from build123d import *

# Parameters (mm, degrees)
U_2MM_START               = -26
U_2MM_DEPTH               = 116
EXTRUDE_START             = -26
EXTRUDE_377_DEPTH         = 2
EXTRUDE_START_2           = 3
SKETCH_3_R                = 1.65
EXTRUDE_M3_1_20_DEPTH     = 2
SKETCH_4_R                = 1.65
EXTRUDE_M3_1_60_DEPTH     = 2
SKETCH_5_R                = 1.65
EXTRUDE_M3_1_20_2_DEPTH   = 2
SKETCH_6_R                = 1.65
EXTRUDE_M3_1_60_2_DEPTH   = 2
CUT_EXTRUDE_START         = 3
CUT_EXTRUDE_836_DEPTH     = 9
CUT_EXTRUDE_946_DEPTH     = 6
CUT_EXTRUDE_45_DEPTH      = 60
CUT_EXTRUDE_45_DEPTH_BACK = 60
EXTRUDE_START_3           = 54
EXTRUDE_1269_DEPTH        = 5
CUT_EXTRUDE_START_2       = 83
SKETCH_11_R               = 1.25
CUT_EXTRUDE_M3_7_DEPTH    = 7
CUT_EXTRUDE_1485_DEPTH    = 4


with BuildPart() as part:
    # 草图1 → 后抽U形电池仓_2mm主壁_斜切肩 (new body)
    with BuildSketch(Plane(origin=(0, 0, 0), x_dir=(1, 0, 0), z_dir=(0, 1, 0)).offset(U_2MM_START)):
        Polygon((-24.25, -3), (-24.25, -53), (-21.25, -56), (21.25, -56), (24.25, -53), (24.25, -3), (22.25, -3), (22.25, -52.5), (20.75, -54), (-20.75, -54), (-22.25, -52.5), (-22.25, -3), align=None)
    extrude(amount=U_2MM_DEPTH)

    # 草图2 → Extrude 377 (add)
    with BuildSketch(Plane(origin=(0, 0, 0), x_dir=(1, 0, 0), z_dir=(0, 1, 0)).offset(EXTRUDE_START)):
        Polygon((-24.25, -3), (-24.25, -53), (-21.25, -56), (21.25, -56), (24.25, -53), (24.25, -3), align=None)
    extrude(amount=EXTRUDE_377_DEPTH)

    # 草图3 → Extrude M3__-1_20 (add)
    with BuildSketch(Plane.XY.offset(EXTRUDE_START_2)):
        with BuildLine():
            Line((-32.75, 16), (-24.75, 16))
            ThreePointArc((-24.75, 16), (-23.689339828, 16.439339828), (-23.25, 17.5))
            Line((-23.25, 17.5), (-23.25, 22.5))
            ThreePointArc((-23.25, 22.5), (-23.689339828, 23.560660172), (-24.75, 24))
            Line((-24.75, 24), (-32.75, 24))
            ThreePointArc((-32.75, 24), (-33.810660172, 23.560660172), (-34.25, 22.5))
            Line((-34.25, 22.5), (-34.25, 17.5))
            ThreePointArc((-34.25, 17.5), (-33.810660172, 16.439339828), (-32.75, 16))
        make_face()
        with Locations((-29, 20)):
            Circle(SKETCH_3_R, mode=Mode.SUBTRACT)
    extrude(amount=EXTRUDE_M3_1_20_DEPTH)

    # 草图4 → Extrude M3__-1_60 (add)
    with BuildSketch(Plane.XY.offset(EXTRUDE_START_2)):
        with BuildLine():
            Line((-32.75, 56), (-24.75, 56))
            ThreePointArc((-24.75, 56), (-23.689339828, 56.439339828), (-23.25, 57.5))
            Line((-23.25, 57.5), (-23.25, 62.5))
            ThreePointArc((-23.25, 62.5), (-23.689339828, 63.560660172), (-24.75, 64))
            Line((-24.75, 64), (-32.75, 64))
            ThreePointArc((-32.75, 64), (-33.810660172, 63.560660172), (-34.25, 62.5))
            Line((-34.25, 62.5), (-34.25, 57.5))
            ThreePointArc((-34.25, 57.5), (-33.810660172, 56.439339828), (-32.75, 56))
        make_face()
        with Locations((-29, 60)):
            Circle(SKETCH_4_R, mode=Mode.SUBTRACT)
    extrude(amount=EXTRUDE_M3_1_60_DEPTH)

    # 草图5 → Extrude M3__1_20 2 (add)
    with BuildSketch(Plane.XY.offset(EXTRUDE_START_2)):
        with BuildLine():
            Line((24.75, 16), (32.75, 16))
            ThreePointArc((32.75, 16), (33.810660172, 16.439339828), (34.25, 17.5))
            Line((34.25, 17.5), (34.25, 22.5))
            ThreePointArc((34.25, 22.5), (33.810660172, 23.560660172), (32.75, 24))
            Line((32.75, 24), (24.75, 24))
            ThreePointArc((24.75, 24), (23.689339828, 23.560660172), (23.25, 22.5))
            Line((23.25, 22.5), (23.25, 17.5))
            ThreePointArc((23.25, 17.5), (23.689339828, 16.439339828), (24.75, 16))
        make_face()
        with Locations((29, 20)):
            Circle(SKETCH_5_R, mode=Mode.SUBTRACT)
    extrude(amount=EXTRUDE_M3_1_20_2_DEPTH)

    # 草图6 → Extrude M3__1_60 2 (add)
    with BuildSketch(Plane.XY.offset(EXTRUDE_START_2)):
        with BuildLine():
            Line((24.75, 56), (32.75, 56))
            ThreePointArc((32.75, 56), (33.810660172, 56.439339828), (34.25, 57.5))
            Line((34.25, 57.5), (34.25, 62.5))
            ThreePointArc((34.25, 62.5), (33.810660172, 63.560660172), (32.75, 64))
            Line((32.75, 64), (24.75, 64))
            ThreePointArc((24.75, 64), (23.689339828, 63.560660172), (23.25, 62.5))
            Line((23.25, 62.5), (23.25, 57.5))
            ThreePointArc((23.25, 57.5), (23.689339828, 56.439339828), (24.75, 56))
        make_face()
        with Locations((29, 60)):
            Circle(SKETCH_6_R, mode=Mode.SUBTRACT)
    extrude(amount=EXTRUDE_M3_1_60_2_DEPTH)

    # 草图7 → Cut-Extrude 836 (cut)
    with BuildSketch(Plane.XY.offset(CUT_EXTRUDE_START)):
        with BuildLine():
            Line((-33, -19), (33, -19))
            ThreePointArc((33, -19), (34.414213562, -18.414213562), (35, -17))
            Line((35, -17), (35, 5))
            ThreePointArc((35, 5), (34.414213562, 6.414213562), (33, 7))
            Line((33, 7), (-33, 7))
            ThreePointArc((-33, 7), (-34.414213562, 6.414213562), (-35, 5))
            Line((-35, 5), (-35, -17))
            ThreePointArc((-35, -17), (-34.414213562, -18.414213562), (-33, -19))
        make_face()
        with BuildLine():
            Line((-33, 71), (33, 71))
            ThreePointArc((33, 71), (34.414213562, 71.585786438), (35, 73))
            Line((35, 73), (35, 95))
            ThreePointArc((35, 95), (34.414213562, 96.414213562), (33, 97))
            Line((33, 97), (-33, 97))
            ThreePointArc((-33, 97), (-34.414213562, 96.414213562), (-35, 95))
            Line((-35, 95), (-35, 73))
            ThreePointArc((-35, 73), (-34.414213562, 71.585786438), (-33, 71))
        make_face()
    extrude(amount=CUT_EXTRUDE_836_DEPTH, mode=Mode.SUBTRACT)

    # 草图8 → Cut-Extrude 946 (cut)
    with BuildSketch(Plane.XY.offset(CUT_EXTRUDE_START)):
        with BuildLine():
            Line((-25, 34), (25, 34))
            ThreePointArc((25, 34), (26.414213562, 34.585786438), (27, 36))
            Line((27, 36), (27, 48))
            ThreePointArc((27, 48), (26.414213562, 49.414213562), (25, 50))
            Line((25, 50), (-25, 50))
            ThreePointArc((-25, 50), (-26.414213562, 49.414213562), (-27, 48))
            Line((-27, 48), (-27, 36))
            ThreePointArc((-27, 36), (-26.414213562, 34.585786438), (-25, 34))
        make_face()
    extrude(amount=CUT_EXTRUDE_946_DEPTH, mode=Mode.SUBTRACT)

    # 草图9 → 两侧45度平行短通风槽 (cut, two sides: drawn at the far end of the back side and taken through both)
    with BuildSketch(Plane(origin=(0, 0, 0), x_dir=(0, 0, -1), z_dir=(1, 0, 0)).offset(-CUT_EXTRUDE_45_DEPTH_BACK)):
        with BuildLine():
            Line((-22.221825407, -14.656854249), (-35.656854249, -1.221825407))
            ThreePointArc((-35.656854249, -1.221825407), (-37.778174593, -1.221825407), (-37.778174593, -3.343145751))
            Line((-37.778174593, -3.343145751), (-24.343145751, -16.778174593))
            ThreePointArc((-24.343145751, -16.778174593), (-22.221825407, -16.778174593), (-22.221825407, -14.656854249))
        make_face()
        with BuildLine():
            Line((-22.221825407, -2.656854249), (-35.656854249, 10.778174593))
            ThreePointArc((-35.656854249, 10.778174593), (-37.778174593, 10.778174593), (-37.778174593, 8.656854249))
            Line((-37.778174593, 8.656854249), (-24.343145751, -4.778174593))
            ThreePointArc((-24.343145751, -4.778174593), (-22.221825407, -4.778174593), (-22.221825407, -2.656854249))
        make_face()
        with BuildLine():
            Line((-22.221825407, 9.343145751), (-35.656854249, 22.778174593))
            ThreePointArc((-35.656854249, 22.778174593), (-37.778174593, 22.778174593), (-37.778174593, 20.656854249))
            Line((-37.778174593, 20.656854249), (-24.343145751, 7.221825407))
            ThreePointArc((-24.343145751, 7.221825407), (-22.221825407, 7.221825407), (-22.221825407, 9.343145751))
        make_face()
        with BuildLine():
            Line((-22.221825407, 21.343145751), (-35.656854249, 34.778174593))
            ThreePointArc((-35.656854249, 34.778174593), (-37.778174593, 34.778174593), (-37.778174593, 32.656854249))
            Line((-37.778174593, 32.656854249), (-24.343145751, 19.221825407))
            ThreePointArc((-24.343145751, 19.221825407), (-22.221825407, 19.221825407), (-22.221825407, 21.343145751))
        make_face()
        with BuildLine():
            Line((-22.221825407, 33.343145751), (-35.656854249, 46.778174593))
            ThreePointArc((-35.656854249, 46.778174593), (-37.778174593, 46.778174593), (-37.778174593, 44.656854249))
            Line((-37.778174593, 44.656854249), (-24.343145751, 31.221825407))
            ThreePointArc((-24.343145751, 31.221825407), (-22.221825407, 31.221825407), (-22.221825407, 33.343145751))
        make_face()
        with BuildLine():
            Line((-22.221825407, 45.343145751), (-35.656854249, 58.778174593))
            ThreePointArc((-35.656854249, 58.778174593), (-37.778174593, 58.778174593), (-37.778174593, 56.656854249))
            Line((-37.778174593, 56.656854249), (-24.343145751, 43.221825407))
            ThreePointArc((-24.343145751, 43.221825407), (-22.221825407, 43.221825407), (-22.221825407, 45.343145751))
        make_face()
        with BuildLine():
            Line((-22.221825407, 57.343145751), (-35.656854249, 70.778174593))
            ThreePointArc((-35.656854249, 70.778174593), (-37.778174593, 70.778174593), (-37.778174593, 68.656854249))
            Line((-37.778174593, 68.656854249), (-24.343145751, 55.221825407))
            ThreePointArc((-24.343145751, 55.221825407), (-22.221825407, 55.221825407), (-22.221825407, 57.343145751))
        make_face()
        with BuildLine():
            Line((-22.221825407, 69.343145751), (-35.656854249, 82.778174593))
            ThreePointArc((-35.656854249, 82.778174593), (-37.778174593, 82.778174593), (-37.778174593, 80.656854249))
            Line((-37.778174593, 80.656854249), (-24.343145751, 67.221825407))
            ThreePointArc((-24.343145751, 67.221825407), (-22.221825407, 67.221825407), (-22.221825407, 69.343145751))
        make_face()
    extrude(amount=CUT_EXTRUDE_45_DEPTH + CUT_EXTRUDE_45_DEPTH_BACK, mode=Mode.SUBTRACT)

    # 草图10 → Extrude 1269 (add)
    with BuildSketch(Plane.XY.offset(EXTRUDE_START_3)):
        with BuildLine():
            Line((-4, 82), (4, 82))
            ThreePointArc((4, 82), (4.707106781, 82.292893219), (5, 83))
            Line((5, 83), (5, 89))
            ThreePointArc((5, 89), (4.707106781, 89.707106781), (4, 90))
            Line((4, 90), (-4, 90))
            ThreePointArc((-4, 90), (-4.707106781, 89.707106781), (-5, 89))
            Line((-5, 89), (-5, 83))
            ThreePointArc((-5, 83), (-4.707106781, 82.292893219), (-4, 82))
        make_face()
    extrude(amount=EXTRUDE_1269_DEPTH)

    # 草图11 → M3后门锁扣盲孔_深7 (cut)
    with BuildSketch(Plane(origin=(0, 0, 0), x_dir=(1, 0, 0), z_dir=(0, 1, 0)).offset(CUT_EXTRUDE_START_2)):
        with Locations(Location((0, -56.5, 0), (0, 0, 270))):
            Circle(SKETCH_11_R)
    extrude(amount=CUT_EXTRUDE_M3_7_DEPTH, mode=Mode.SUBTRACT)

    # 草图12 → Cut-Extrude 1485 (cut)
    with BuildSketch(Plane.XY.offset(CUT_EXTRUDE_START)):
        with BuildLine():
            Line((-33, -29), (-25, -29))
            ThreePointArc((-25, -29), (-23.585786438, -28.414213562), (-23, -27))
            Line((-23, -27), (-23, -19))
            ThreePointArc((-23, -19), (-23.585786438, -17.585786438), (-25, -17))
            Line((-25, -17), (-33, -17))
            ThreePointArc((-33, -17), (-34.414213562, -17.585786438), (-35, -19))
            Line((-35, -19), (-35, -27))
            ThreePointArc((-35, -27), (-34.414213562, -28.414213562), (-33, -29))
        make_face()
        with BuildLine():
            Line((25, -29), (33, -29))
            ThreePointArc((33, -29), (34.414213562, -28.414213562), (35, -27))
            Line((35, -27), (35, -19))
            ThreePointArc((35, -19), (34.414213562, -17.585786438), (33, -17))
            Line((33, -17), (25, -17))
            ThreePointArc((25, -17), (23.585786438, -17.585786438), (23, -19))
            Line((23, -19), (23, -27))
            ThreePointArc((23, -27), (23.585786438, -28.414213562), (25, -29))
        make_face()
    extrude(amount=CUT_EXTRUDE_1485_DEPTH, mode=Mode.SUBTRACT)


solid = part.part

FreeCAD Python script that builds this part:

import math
import FreeCAD as App
import Part
import Sketcher

V = App.Vector
Q = App.Units.Quantity


def add_polygon(sketch, points):
    """Adds a closed chain of lines whose ends are joined by coincident constraints."""
    first, n = sketch.GeometryCount, len(points)
    for a, b in zip(points, points[1:] + points[:1]):
        sketch.addGeometry(Part.LineSegment(App.Vector(*a, 0), App.Vector(*b, 0)), False)
    for i in range(n):
        sketch.addConstraint(Sketcher.Constraint("Coincident", first + i, 2, first + (i + 1) % n, 1))

doc = App.newDocument("Part")
body = doc.addObject("PartDesign::Body", "Body")

# Sketch on XZ plane
sketch1 = doc.addObject("Sketcher::SketchObject", "Sketch")
body.addObject(sketch1)
sketch1.AttachmentSupport = (doc.XZ_Plane, [""])
sketch1.MapMode = "FlatFace"
sketch1.AttachmentOffset = App.Placement(V(0, 0, 26), App.Rotation())
add_polygon(sketch1, [(-24.2, 3), (-24.2, 53), (-21.2, 56), (21.2, 56), (24.2, 53), (24.2, 3), (22.2, 3), (22.2, 52.5), (20.8, 54), (-20.8, 54), (-22.2, 52.5), (-22.2, 3)])  # lines 0-11
sketch1.addConstraint([
    Sketcher.Constraint("Vertical", 0),
    Sketcher.Constraint("Horizontal", 2),
    Sketcher.Constraint("Vertical", 4),
    Sketcher.Constraint("Horizontal", 5),
    Sketcher.Constraint("Vertical", 6),
    Sketcher.Constraint("Horizontal", 8),
    Sketcher.Constraint("Vertical", 10),
    Sketcher.Constraint("Horizontal", 11),
    Sketcher.Constraint("Symmetric", 0, 2, 3, 2, -2),
    Sketcher.Constraint("Symmetric", 6, 2, 9, 2, -2),
    Sketcher.Constraint("Perpendicular", 1, 3),
    Sketcher.Constraint("Parallel", 3, 7),
    Sketcher.Constraint("Perpendicular", 7, 9),
    Sketcher.Constraint("Horizontal", 5, 2, 10, 2),
    Sketcher.Constraint("Equal", 1, 3),
    Sketcher.Constraint("DistanceX", 5, 2, 5, 1, Q("2 mm")),
    Sketcher.Constraint("DistanceY", 0, 1, 0, 2, Q("50 mm")),
    Sketcher.Constraint("DistanceX", 2, 1, 2, 2, Q("42.5 mm")),
    Sketcher.Constraint("DistanceX", 8, 2, 8, 1, Q("41.5 mm")),
    Sketcher.Constraint("DistanceY", 6, 1, 6, 2, Q("49.5 mm")),
    Sketcher.Constraint("DistanceY", -1, 1, 0, 2, Q("53 mm")),
    Sketcher.Constraint("DistanceY", -1, 1, 1, 2, Q("56 mm")),
])
pad1 = doc.addObject("PartDesign::Pad", "Pad")
body.addObject(pad1)
pad1.Profile = sketch1
pad1.Length = 116
pad1.Reversed = True

# Sketch on XZ plane
sketch2 = doc.addObject("Sketcher::SketchObject", "Sketch001")
body.addObject(sketch2)
sketch2.AttachmentSupport = (doc.XZ_Plane, [""])
sketch2.MapMode = "FlatFace"
sketch2.AttachmentOffset = App.Placement(V(0, 0, 26), App.Rotation())
add_polygon(sketch2, [(-24.2, 3), (-24.2, 53), (-21.2, 56), (21.2, 56), (24.2, 53), (24.2, 3)])  # lines 0-5
sketch2.addConstraint([
    Sketcher.Constraint("Vertical", 0),
    Sketcher.Constraint("Horizontal", 2),
    Sketcher.Constraint("Vertical", 4),
    Sketcher.Constraint("Horizontal", 5),
    Sketcher.Constraint("Symmetric", 0, 2, 3, 2, -2),
    Sketcher.Constraint("Perpendicular", 1, 3),
    Sketcher.Constraint("Equal", 1, 3),
    Sketcher.Constraint("DistanceY", 0, 1, 0, 2, Q("50 mm")),
    Sketcher.Constraint("DistanceX", 2, 1, 2, 2, Q("42.5 mm")),
    Sketcher.Constraint("DistanceX", 5, 2, 5, 1, Q("48.5 mm")),
    Sketcher.Constraint("DistanceY", -1, 1, 0, 2, Q("53 mm")),
])
pad2 = doc.addObject("PartDesign::Pad", "Pad001")
body.addObject(pad2)
pad2.Profile = sketch2
pad2.Length = 2
pad2.Reversed = True

# Sketch on XY plane
sketch3 = doc.addObject("Sketcher::SketchObject", "Sketch002")
body.addObject(sketch3)
sketch3.AttachmentSupport = (doc.XY_Plane, [""])
sketch3.MapMode = "FlatFace"
sketch3.AttachmentOffset = App.Placement(V(0, 0, 3), App.Rotation())
sketch3.addGeometry([
    Part.LineSegment(V(-32.8, 16, 0), V(-24.8, 16, 0)),  # 0
    Part.ArcOfCircle(Part.Circle(V(-24.7, 17.5, 0), V(0, 0, 1), 1.5), math.radians(-90), math.radians(0)),  # 1
    Part.LineSegment(V(-23.2, 17.5, 0), V(-23.2, 22.5, 0)),  # 2
    Part.ArcOfCircle(Part.Circle(V(-24.7, 22.5, 0), V(0, 0, 1), 1.5), math.radians(0), math.radians(90)),  # 3
    Part.LineSegment(V(-24.8, 24, 0), V(-32.8, 24, 0)),  # 4
    Part.ArcOfCircle(Part.Circle(V(-32.8, 22.5, 0), V(0, 0, 1), 1.5), math.radians(90), math.radians(180)),  # 5
    Part.LineSegment(V(-34.2, 22.5, 0), V(-34.2, 17.5, 0)),  # 6
    Part.ArcOfCircle(Part.Circle(V(-32.8, 17.5, 0), V(0, 0, 1), 1.5), math.radians(180), math.radians(270)),  # 7
    Part.Circle(V(-29, 20, 0), V(0, 0, 1), 1.6),  # 8
], False)
sketch3.addConstraint([
    Sketcher.Constraint("Tangent", 0, 2, 1, 1),
    Sketcher.Constraint("Tangent", 1, 2, 2, 1),
    Sketcher.Constraint("Tangent", 2, 2, 3, 1),
    Sketcher.Constraint("Tangent", 3, 2, 4, 1),
    Sketcher.Constraint("Tangent", 4, 2, 5, 1),
    Sketcher.Constraint("Tangent", 5, 2, 6, 1),
    Sketcher.Constraint("Tangent", 6, 2, 7, 1),
    Sketcher.Constraint("Tangent", 7, 2, 0, 1),
    Sketcher.Constraint("Horizontal", 0),
    Sketcher.Constraint("Vertical", 2),
    Sketcher.Constraint("Horizontal", 4),
    Sketcher.Constraint("Vertical", 6),
    Sketcher.Constraint("Equal", 1, 3),
    Sketcher.Constraint("Equal", 3, 5),
    Sketcher.Constraint("Equal", 5, 7),
    Sketcher.Constraint("Diameter", 8, Q("3.3 mm")),
    Sketcher.Constraint("Radius", 1, Q("1.5 mm")),
    Sketcher.Constraint("DistanceX", 0, 1, 0, 2, Q("8 mm")),
    Sketcher.Constraint("DistanceY", 2, 1, 2, 2, Q("5 mm")),
    Sketcher.Constraint("DistanceX", 8, 3, -1, 1, Q("29 mm")),
    Sketcher.Constraint("DistanceY", -1, 1, 8, 3, Q("20 mm")),
    Sketcher.Constraint("DistanceY", -1, 1, 0, 2, Q("16 mm")),
    Sketcher.Constraint("DistanceX", 1, 3, -1, 1, Q("24.75 mm")),
])
pad3 = doc.addObject("PartDesign::Pad", "Pad002")
body.addObject(pad3)
pad3.Profile = sketch3
pad3.Length = 2

# Sketch on XY plane
sketch4 = doc.addObject("Sketcher::SketchObject", "Sketch003")
body.addObject(sketch4)
sketch4.AttachmentSupport = (doc.XY_Plane, [""])
sketch4.MapMode = "FlatFace"
sketch4.AttachmentOffset = App.Placement(V(0, 0, 3), App.Rotation())
sketch4.addGeometry([
    Part.LineSegment(V(-32.8, 56, 0), V(-24.8, 56, 0)),  # 0
    Part.ArcOfCircle(Part.Circle(V(-24.7, 57.5, 0), V(0, 0, 1), 1.5), math.radians(-90), math.radians(0)),  # 1
    Part.LineSegment(V(-23.2, 57.5, 0), V(-23.2, 62.5, 0)),  # 2
    Part.ArcOfCircle(Part.Circle(V(-24.7, 62.5, 0), V(0, 0, 1), 1.5), math.radians(0), math.radians(90)),  # 3
    Part.LineSegment(V(-24.8, 64, 0), V(-32.8, 64, 0)),  # 4
    Part.ArcOfCircle(Part.Circle(V(-32.8, 62.5, 0), V(0, 0, 1), 1.5), math.radians(90), math.radians(180)),  # 5
    Part.LineSegment(V(-34.2, 62.5, 0), V(-34.2, 57.5, 0)),  # 6
    Part.ArcOfCircle(Part.Circle(V(-32.8, 57.5, 0), V(0, 0, 1), 1.5), math.radians(180), math.radians(270)),  # 7
    Part.Circle(V(-29, 60, 0), V(0, 0, 1), 1.6),  # 8
], False)
sketch4.addConstraint([
    Sketcher.Constraint("Tangent", 0, 2, 1, 1),
    Sketcher.Constraint("Tangent", 1, 2, 2, 1),
    Sketcher.Constraint("Tangent", 2, 2, 3, 1),
    Sketcher.Constraint("Tangent", 3, 2, 4, 1),
    Sketcher.Constraint("Tangent", 4, 2, 5, 1),
    Sketcher.Constraint("Tangent", 5, 2, 6, 1),
    Sketcher.Constraint("Tangent", 6, 2, 7, 1),
    Sketcher.Constraint("Tangent", 7, 2, 0, 1),
    Sketcher.Constraint("Horizontal", 0),
    Sketcher.Constraint("Vertical", 2),
    Sketcher.Constraint("Horizontal", 4),
    Sketcher.Constraint("Vertical", 6),
    Sketcher.Constraint("Equal", 1, 3),
    Sketcher.Constraint("Equal", 3, 5),
    Sketcher.Constraint("Equal", 5, 7),
    Sketcher.Constraint("Diameter", 8, Q("3.3 mm")),
    Sketcher.Constraint("Radius", 1, Q("1.5 mm")),
    Sketcher.Constraint("DistanceX", 0, 1, 0, 2, Q("8 mm")),
    Sketcher.Constraint("DistanceY", 2, 1, 2, 2, Q("5 mm")),
    Sketcher.Constraint("DistanceX", 8, 3, -1, 1, Q("29 mm")),
    Sketcher.Constraint("DistanceY", -1, 1, 8, 3, Q("60 mm")),
    Sketcher.Constraint("DistanceY", -1, 1, 0, 2, Q("56 mm")),
    Sketcher.Constraint("DistanceX", 1, 3, -1, 1, Q("24.75 mm")),
])
pad4 = doc.addObject("PartDesign::Pad", "Pad003")
body.addObject(pad4)
pad4.Profile = sketch4
pad4.Length = 2

# Sketch on XY plane
sketch5 = doc.addObject("Sketcher::SketchObject", "Sketch004")
body.addObject(sketch5)
sketch5.AttachmentSupport = (doc.XY_Plane, [""])
sketch5.MapMode = "FlatFace"
sketch5.AttachmentOffset = App.Placement(V(0, 0, 3), App.Rotation())
sketch5.addGeometry([
    Part.LineSegment(V(24.8, 16, 0), V(32.8, 16, 0)),  # 0
    Part.ArcOfCircle(Part.Circle(V(32.8, 17.5, 0), V(0, 0, 1), 1.5), math.radians(-90), math.radians(0)),  # 1
    Part.LineSegment(V(34.2, 17.5, 0), V(34.2, 22.5, 0)),  # 2
    Part.ArcOfCircle(Part.Circle(V(32.8, 22.5, 0), V(0, 0, 1), 1.5), math.radians(0), math.radians(90)),  # 3
    Part.LineSegment(V(32.8, 24, 0), V(24.8, 24, 0)),  # 4
    Part.ArcOfCircle(Part.Circle(V(24.7, 22.5, 0), V(0, 0, 1), 1.5), math.radians(90), math.radians(180)),  # 5
    Part.LineSegment(V(23.2, 22.5, 0), V(23.2, 17.5, 0)),  # 6
    Part.ArcOfCircle(Part.Circle(V(24.7, 17.5, 0), V(0, 0, 1), 1.5), math.radians(180), math.radians(270)),  # 7
    Part.Circle(V(29, 20, 0), V(0, 0, 1), 1.6),  # 8
], False)
sketch5.addConstraint([
    Sketcher.Constraint("Tangent", 0, 2, 1, 1),
    Sketcher.Constraint("Tangent", 1, 2, 2, 1),
    Sketcher.Constraint("Tangent", 2, 2, 3, 1),
    Sketcher.Constraint("Tangent", 3, 2, 4, 1),
    Sketcher.Constraint("Tangent", 4, 2, 5, 1),
    Sketcher.Constraint("Tangent", 5, 2, 6, 1),
    Sketcher.Constraint("Tangent", 6, 2, 7, 1),
    Sketcher.Constraint("Tangent", 7, 2, 0, 1),
    Sketcher.Constraint("Horizontal", 0),
    Sketcher.Constraint("Vertical", 2),
    Sketcher.Constraint("Horizontal", 4),
    Sketcher.Constraint("Vertical", 6),
    Sketcher.Constraint("Equal", 1, 3),
    Sketcher.Constraint("Equal", 3, 5),
    Sketcher.Constraint("Equal", 5, 7),
    Sketcher.Constraint("Diameter", 8, Q("3.3 mm")),
    Sketcher.Constraint("Radius", 1, Q("1.5 mm")),
    Sketcher.Constraint("DistanceX", 0, 1, 0, 2, Q("8 mm")),
    Sketcher.Constraint("DistanceY", 2, 1, 2, 2, Q("5 mm")),
    Sketcher.Constraint("DistanceX", -1, 1, 8, 3, Q("29 mm")),
    Sketcher.Constraint("DistanceY", -1, 1, 8, 3, Q("20 mm")),
    Sketcher.Constraint("DistanceY", -1, 1, 0, 2, Q("16 mm")),
    Sketcher.Constraint("DistanceX", -1, 1, 1, 3, Q("32.75 mm")),
])
pad5 = doc.addObject("PartDesign::Pad", "Pad004")
body.addObject(pad5)
pad5.Profile = sketch5
pad5.Length = 2

# Sketch on XY plane
sketch6 = doc.addObject("Sketcher::SketchObject", "Sketch005")
body.addObject(sketch6)
sketch6.AttachmentSupport = (doc.XY_Plane, [""])
sketch6.MapMode = "FlatFace"
sketch6.AttachmentOffset = App.Placement(V(0, 0, 3), App.Rotation())
sketch6.addGeometry([
    Part.LineSegment(V(24.8, 56, 0), V(32.8, 56, 0)),  # 0
    Part.ArcOfCircle(Part.Circle(V(32.8, 57.5, 0), V(0, 0, 1), 1.5), math.radians(-90), math.radians(0)),  # 1
    Part.LineSegment(V(34.2, 57.5, 0), V(34.2, 62.5, 0)),  # 2
    Part.ArcOfCircle(Part.Circle(V(32.8, 62.5, 0), V(0, 0, 1), 1.5), math.radians(0), math.radians(90)),  # 3
    Part.LineSegment(V(32.8, 64, 0), V(24.8, 64, 0)),  # 4
    Part.ArcOfCircle(Part.Circle(V(24.7, 62.5, 0), V(0, 0, 1), 1.5), math.radians(90), math.radians(180)),  # 5
    Part.LineSegment(V(23.2, 62.5, 0), V(23.2, 57.5, 0)),  # 6
    Part.ArcOfCircle(Part.Circle(V(24.7, 57.5, 0), V(0, 0, 1), 1.5), math.radians(180), math.radians(270)),  # 7
    Part.Circle(V(29, 60, 0), V(0, 0, 1), 1.6),  # 8
], False)
sketch6.addConstraint([
    Sketcher.Constraint("Tangent", 0, 2, 1, 1),
    Sketcher.Constraint("Tangent", 1, 2, 2, 1),
    Sketcher.Constraint("Tangent", 2, 2, 3, 1),
    Sketcher.Constraint("Tangent", 3, 2, 4, 1),
    Sketcher.Constraint("Tangent", 4, 2, 5, 1),
    Sketcher.Constraint("Tangent", 5, 2, 6, 1),
    Sketcher.Constraint("Tangent", 6, 2, 7, 1),
    Sketcher.Constraint("Tangent", 7, 2, 0, 1),
    Sketcher.Constraint("Horizontal", 0),
    Sketcher.Constraint("Vertical", 2),
    Sketcher.Constraint("Horizontal", 4),
    Sketcher.Constraint("Vertical", 6),
    Sketcher.Constraint("Equal", 1, 3),
    Sketcher.Constraint("Equal", 3, 5),
    Sketcher.Constraint("Equal", 5, 7),
    Sketcher.Constraint("Diameter", 8, Q("3.3 mm")),
    Sketcher.Constraint("Radius", 1, Q("1.5 mm")),
    Sketcher.Constraint("DistanceX", 0, 1, 0, 2, Q("8 mm")),
    Sketcher.Constraint("DistanceY", 2, 1, 2, 2, Q("5 mm")),
    Sketcher.Constraint("DistanceX", -1, 1, 8, 3, Q("29 mm")),
    Sketcher.Constraint("DistanceY", -1, 1, 8, 3, Q("60 mm")),
    Sketcher.Constraint("DistanceY", -1, 1, 0, 2, Q("56 mm")),
    Sketcher.Constraint("DistanceX", -1, 1, 1, 3, Q("32.75 mm")),
])
pad6 = doc.addObject("PartDesign::Pad", "Pad005")
body.addObject(pad6)
pad6.Profile = sketch6
pad6.Length = 2

# Sketch on XY plane
sketch7 = doc.addObject("Sketcher::SketchObject", "Sketch006")
body.addObject(sketch7)
sketch7.AttachmentSupport = (doc.XY_Plane, [""])
sketch7.MapMode = "FlatFace"
sketch7.AttachmentOffset = App.Placement(V(0, 0, 3), App.Rotation())
sketch7.addGeometry([
    Part.LineSegment(V(-33, -19, 0), V(33, -19, 0)),  # 0
    Part.ArcOfCircle(Part.Circle(V(33, -17, 0), V(0, 0, 1), 2), math.radians(-90), math.radians(0)),  # 1
    Part.LineSegment(V(35, -17, 0), V(35, 5, 0)),  # 2
    Part.ArcOfCircle(Part.Circle(V(33, 5, 0), V(0, 0, 1), 2), math.radians(0), math.radians(90)),  # 3
    Part.LineSegment(V(33, 7, 0), V(-33, 7, 0)),  # 4
    Part.ArcOfCircle(Part.Circle(V(-33, 5, 0), V(0, 0, 1), 2), math.radians(90), math.radians(180)),  # 5
    Part.LineSegment(V(-35, 5, 0), V(-35, -17, 0)),  # 6
    Part.ArcOfCircle(Part.Circle(V(-33, -17, 0), V(0, 0, 1), 2), math.radians(-180), math.radians(-90)),  # 7
    Part.LineSegment(V(-33, 71, 0), V(33, 71, 0)),  # 8
    Part.ArcOfCircle(Part.Circle(V(33, 73, 0), V(0, 0, 1), 2), math.radians(-90), math.radians(0)),  # 9
    Part.LineSegment(V(35, 73, 0), V(35, 95, 0)),  # 10
    Part.ArcOfCircle(Part.Circle(V(33, 95, 0), V(0, 0, 1), 2), math.radians(0), math.radians(90)),  # 11
    Part.LineSegment(V(33, 97, 0), V(-33, 97, 0)),  # 12
    Part.ArcOfCircle(Part.Circle(V(-33, 95, 0), V(0, 0, 1), 2), math.radians(90), math.radians(180)),  # 13
    Part.LineSegment(V(-35, 95, 0), V(-35, 73, 0)),  # 14
    Part.ArcOfCircle(Part.Circle(V(-33, 73, 0), V(0, 0, 1), 2), math.radians(-180), math.radians(-90)),  # 15
], False)
sketch7.addConstraint([
    Sketcher.Constraint("Tangent", 0, 2, 1, 1),
    Sketcher.Constraint("Tangent", 1, 2, 2, 1),
    Sketcher.Constraint("Tangent", 2, 2, 3, 1),
    Sketcher.Constraint("Tangent", 3, 2, 4, 1),
    Sketcher.Constraint("Tangent", 4, 2, 5, 1),
    Sketcher.Constraint("Tangent", 5, 2, 6, 1),
    Sketcher.Constraint("Tangent", 6, 2, 7, 1),
    Sketcher.Constraint("Tangent", 7, 2, 0, 1),
    Sketcher.Constraint("Tangent", 8, 2, 9, 1),
    Sketcher.Constraint("Tangent", 9, 2, 10, 1),
    Sketcher.Constraint("Tangent", 10, 2, 11, 1),
    Sketcher.Constraint("Tangent", 11, 2, 12, 1),
    Sketcher.Constraint("Tangent", 12, 2, 13, 1),
    Sketcher.Constraint("Tangent", 13, 2, 14, 1),
    Sketcher.Constraint("Tangent", 14, 2, 15, 1),
    Sketcher.Constraint("Tangent", 15, 2, 8, 1),
    Sketcher.Constraint("Horizontal", 0),
    Sketcher.Constraint("Vertical", 2),
    Sketcher.Constraint("Horizontal", 4),
    Sketcher.Constraint("Vertical", 6),
    Sketcher.Constraint("Horizontal", 8),
    Sketcher.Constraint("Vertical", 10),
    Sketcher.Constraint("Horizontal", 12),
    Sketcher.Constraint("Vertical", 14),
    Sketcher.Constraint("Equal", 1, 3),
    Sketcher.Constraint("Equal", 3, 5),
    Sketcher.Constraint("Equal", 5, 7),
    Sketcher.Constraint("Equal", 7, 9),
    Sketcher.Constraint("Equal", 9, 11),
    Sketcher.Constraint("Equal", 11, 13),
    Sketcher.Constraint("Equal", 13, 15),
    Sketcher.Constraint("Vertical", 3, 3, 9, 3),
    Sketcher.Constraint("Vertical", 7, 3, 13, 3),
    Sketcher.Constraint("Equal", 6, 10),
    Sketcher.Constraint("Radius", 1, Q("2 mm")),
    Sketcher.Constraint("DistanceX", 0, 1, 0, 2, Q("66 mm")),
    Sketcher.Constraint("DistanceY", 2, 1, 2, 2, Q("22 mm")),
    Sketcher.Constraint("DistanceX", -1, 1, 1, 3, Q("33 mm")),
    Sketcher.Constraint("DistanceY", 1, 3, -1, 1, Q("17 mm")),
    Sketcher.Constraint("DistanceY", -1, 1, 9, 3, Q("73 mm")),
])
pocket1 = doc.addObject("PartDesign::Pocket", "Pocket")
body.addObject(pocket1)
pocket1.Profile = sketch7
pocket1.Length = 9
pocket1.Reversed = True

# Sketch on XY plane
sketch8 = doc.addObject("Sketcher::SketchObject", "Sketch007")
body.addObject(sketch8)
sketch8.AttachmentSupport = (doc.XY_Plane, [""])
sketch8.MapMode = "FlatFace"
sketch8.AttachmentOffset = App.Placement(V(0, 0, 3), App.Rotation())
sketch8.addGeometry([
    Part.LineSegment(V(-25, 34, 0), V(25, 34, 0)),  # 0
    Part.ArcOfCircle(Part.Circle(V(25, 36, 0), V(0, 0, 1), 2), math.radians(-90), math.radians(0)),  # 1
    Part.LineSegment(V(27, 36, 0), V(27, 48, 0)),  # 2
    Part.ArcOfCircle(Part.Circle(V(25, 48, 0), V(0, 0, 1), 2), math.radians(0), math.radians(90)),  # 3
    Part.LineSegment(V(25, 50, 0), V(-25, 50, 0)),  # 4
    Part.ArcOfCircle(Part.Circle(V(-25, 48, 0), V(0, 0, 1), 2), math.radians(90), math.radians(180)),  # 5
    Part.LineSegment(V(-27, 48, 0), V(-27, 36, 0)),  # 6
    Part.ArcOfCircle(Part.Circle(V(-25, 36, 0), V(0, 0, 1), 2), math.radians(-180), math.radians(-90)),  # 7
], False)
sketch8.addConstraint([
    Sketcher.Constraint("Tangent", 0, 2, 1, 1),
    Sketcher.Constraint("Tangent", 1, 2, 2, 1),
    Sketcher.Constraint("Tangent", 2, 2, 3, 1),
    Sketcher.Constraint("Tangent", 3, 2, 4, 1),
    Sketcher.Constraint("Tangent", 4, 2, 5, 1),
    Sketcher.Constraint("Tangent", 5, 2, 6, 1),
    Sketcher.Constraint("Tangent", 6, 2, 7, 1),
    Sketcher.Constraint("Tangent", 7, 2, 0, 1),
    Sketcher.Constraint("Horizontal", 0),
    Sketcher.Constraint("Vertical", 2),
    Sketcher.Constraint("Horizontal", 4),
    Sketcher.Constraint("Vertical", 6),
    Sketcher.Constraint("Equal", 1, 3),
    Sketcher.Constraint("Equal", 3, 5),
    Sketcher.Constraint("Equal", 5, 7),
    Sketcher.Constraint("Radius", 1, Q("2 mm")),
    Sketcher.Constraint("DistanceX", 0, 1, 0, 2, Q("50 mm")),
    Sketcher.Constraint("DistanceY", 2, 1, 2, 2, Q("12 mm")),
    Sketcher.Constraint("DistanceX", -1, 1, 1, 3, Q("25 mm")),
    Sketcher.Constraint("DistanceY", -1, 1, 1, 3, Q("36 mm")),
])
pocket2 = doc.addObject("PartDesign::Pocket", "Pocket001")
body.addObject(pocket2)
pocket2.Profile = sketch8
pocket2.Length = 6
pocket2.Reversed = True

# Sketch on YZ plane
sketch9 = doc.addObject("Sketcher::SketchObject", "Sketch008")
body.addObject(sketch9)
sketch9.AttachmentSupport = (doc.YZ_Plane, [""])
sketch9.MapMode = "FlatFace"
sketch9.addGeometry([
    Part.LineSegment(V(-14.7, 22.2, 0), V(-1.2, 35.7, 0)),  # 0
    Part.ArcOfCircle(Part.Circle(V(-2.3, 36.7, 0), V(0, 0, 1), 1.5), math.radians(-45), math.radians(135)),  # 1
    Part.LineSegment(V(-3.3, 37.8, 0), V(-16.8, 24.3, 0)),  # 2
    Part.ArcOfCircle(Part.Circle(V(-15.7, 23.3, 0), V(0, 0, 1), 1.5), math.radians(135), math.radians(315)),  # 3
    Part.LineSegment(V(-2.7, 22.2, 0), V(10.8, 35.7, 0)),  # 4
    Part.ArcOfCircle(Part.Circle(V(9.7, 36.7, 0), V(0, 0, 1), 1.5), math.radians(-45), math.radians(135)),  # 5
    Part.LineSegment(V(8.7, 37.8, 0), V(-4.8, 24.3, 0)),  # 6
    Part.ArcOfCircle(Part.Circle(V(-3.7, 23.3, 0), V(0, 0, 1), 1.5), math.radians(135), math.radians(315)),  # 7
    Part.LineSegment(V(9.3, 22.2, 0), V(22.8, 35.7, 0)),  # 8
    Part.ArcOfCircle(Part.Circle(V(21.7, 36.7, 0), V(0, 0, 1), 1.5), math.radians(-45), math.radians(135)),  # 9
    Part.LineSegment(V(20.7, 37.8, 0), V(7.2, 24.3, 0)),  # 10
    Part.ArcOfCircle(Part.Circle(V(8.3, 23.3, 0), V(0, 0, 1), 1.5), math.radians(135), math.radians(315)),  # 11
    Part.LineSegment(V(21.3, 22.2, 0), V(34.8, 35.7, 0)),  # 12
    Part.ArcOfCircle(Part.Circle(V(33.7, 36.7, 0), V(0, 0, 1), 1.5), math.radians(-45), math.radians(135)),  # 13
    Part.LineSegment(V(32.7, 37.8, 0), V(19.2, 24.3, 0)),  # 14
    Part.ArcOfCircle(Part.Circle(V(20.3, 23.3, 0), V(0, 0, 1), 1.5), math.radians(135), math.radians(315)),  # 15
    Part.LineSegment(V(33.3, 22.2, 0), V(46.8, 35.7, 0)),  # 16
    Part.ArcOfCircle(Part.Circle(V(45.7, 36.7, 0), V(0, 0, 1), 1.5), math.radians(-45), math.radians(135)),  # 17
    Part.LineSegment(V(44.7, 37.8, 0), V(31.2, 24.3, 0)),  # 18
    Part.ArcOfCircle(Part.Circle(V(32.3, 23.3, 0), V(0, 0, 1), 1.5), math.radians(135), math.radians(315)),  # 19
    Part.LineSegment(V(45.3, 22.2, 0), V(58.8, 35.7, 0)),  # 20
    Part.ArcOfCircle(Part.Circle(V(57.7, 36.7, 0), V(0, 0, 1), 1.5), math.radians(-45), math.radians(135)),  # 21
    Part.LineSegment(V(56.7, 37.8, 0), V(43.2, 24.3, 0)),  # 22
    Part.ArcOfCircle(Part.Circle(V(44.3, 23.3, 0), V(0, 0, 1), 1.5), math.radians(135), math.radians(315)),  # 23
    Part.LineSegment(V(57.3, 22.2, 0), V(70.8, 35.7, 0)),  # 24
    Part.ArcOfCircle(Part.Circle(V(69.7, 36.7, 0), V(0, 0, 1), 1.5), math.radians(-45), math.radians(135)),  # 25
    Part.LineSegment(V(68.7, 37.8, 0), V(55.2, 24.3, 0)),  # 26
    Part.ArcOfCircle(Part.Circle(V(56.3, 23.3, 0), V(0, 0, 1), 1.5), math.radians(135), math.radians(315)),  # 27
    Part.LineSegment(V(69.3, 22.2, 0), V(82.8, 35.7, 0)),  # 28
    Part.ArcOfCircle(Part.Circle(V(81.7, 36.7, 0), V(0, 0, 1), 1.5), math.radians(-45), math.radians(135)),  # 29
    Part.LineSegment(V(80.7, 37.8, 0), V(67.2, 24.3, 0)),  # 30
    Part.ArcOfCircle(Part.Circle(V(68.3, 23.3, 0), V(0, 0, 1), 1.5), math.radians(135), math.radians(315)),  # 31
], False)
sketch9.addConstraint([
    Sketcher.Constraint("Tangent", 0, 2, 1, 1),
    Sketcher.Constraint("Tangent", 1, 2, 2, 1),
    Sketcher.Constraint("Tangent", 2, 2, 3, 1),
    Sketcher.Constraint("Tangent", 3, 2, 0, 1),
    Sketcher.Constraint("Tangent", 4, 2, 5, 1),
    Sketcher.Constraint("Tangent", 5, 2, 6, 1),
    Sketcher.Constraint("Tangent", 6, 2, 7, 1),
    Sketcher.Constraint("Tangent", 7, 2, 4, 1),
    Sketcher.Constraint("Tangent", 8, 2, 9, 1),
    Sketcher.Constraint("Tangent", 9, 2, 10, 1),
    Sketcher.Constraint("Tangent", 10, 2, 11, 1),
    Sketcher.Constraint("Tangent", 11, 2, 8, 1),
    Sketcher.Constraint("Tangent", 12, 2, 13, 1),
    Sketcher.Constraint("Tangent", 13, 2, 14, 1),
    Sketcher.Constraint("Tangent", 14, 2, 15, 1),
    Sketcher.Constraint("Tangent", 15, 2, 12, 1),
    Sketcher.Constraint("Tangent", 16, 2, 17, 1),
    Sketcher.Constraint("Tangent", 17, 2, 18, 1),
    Sketcher.Constraint("Tangent", 18, 2, 19, 1),
    Sketcher.Constraint("Tangent", 19, 2, 16, 1),
    Sketcher.Constraint("Tangent", 20, 2, 21, 1),
    Sketcher.Constraint("Tangent", 21, 2, 22, 1),
    Sketcher.Constraint("Tangent", 22, 2, 23, 1),
    Sketcher.Constraint("Tangent", 23, 2, 20, 1),
    Sketcher.Constraint("Tangent", 24, 2, 25, 1),
    Sketcher.Constraint("Tangent", 25, 2, 26, 1),
    Sketcher.Constraint("Tangent", 26, 2, 27, 1),
    Sketcher.Constraint("Tangent", 27, 2, 24, 1),
    Sketcher.Constraint("Tangent", 28, 2, 29, 1),
    Sketcher.Constraint("Tangent", 29, 2, 30, 1),
    Sketcher.Constraint("Tangent", 30, 2, 31, 1),
    Sketcher.Constraint("Tangent", 31, 2, 28, 1),
    Sketcher.Constraint("Equal", 1, 3),
    Sketcher.Constraint("Equal", 3, 5),
    Sketcher.Constraint("Equal", 5, 7),
    Sketcher.Constraint("Equal", 7, 9),
    Sketcher.Constraint("Equal", 9, 11),
    Sketcher.Constraint("Equal", 11, 13),
    Sketcher.Constraint("Equal", 13, 15),
    Sketcher.Constraint("Equal", 15, 17),
    Sketcher.Constraint("Equal", 17, 19),
    Sketcher.Constraint("Equal", 19, 21),
    Sketcher.Constraint("Equal", 21, 23),
    Sketcher.Constraint("Equal", 23, 25),
    Sketcher.Constraint("Equal", 25, 27),
    Sketcher.Constraint("Equal", 27, 29),
    Sketcher.Constraint("Equal", 29, 31),
    Sketcher.Constraint("Parallel", 2, 4),
    Sketcher.Constraint("Parallel", 6, 8),
    Sketcher.Constraint("Parallel", 10, 12),
    Sketcher.Constraint("Parallel", 14, 16),
    Sketcher.Constraint("Parallel", 18, 20),
    Sketcher.Constraint("Parallel", 22, 24),
    Sketcher.Constraint("Parallel", 26, 28),
    Sketcher.Constraint("Horizontal", 1, 3, 5, 3),
    Sketcher.Constraint("Horizontal", 3, 3, 7, 3),
    Sketcher.Constraint("Horizontal", 5, 3, 9, 3),
    Sketcher.Constraint("Horizontal", 7, 3, 11, 3),
    Sketcher.Constraint("Horizontal", 9, 3, 13, 3),
    Sketcher.Constraint("Horizontal", 11, 3, 15, 3),
    Sketcher.Constraint("Horizontal", 13, 3, 17, 3),
    Sketcher.Constraint("Horizontal", 15, 3, 19, 3),
    Sketcher.Constraint("Horizontal", 17, 3, 21, 3),
    Sketcher.Constraint("Horizontal", 19, 3, 23, 3),
    Sketcher.Constraint("Horizontal", 21, 3, 25, 3),
    Sketcher.Constraint("Horizontal", 23, 3, 27, 3),
    Sketcher.Constraint("Horizontal", 25, 3, 29, 3),
    Sketcher.Constraint("Horizontal", 27, 3, 31, 3),
    Sketcher.Constraint("Radius", 1, Q("1.5 mm")),
    Sketcher.Constraint("Angle", 0, Q("45 deg")),
    Sketcher.Constraint("Distance", 0, Q("19 mm")),
    Sketcher.Constraint("DistanceX", 1, 3, 5, 3, Q("12 mm")),
    Sketcher.Constraint("DistanceX", 5, 3, 9, 3, Q("12 mm")),
    Sketcher.Constraint("DistanceX", 9, 3, 13, 3, Q("12 mm")),
    Sketcher.Constraint("DistanceX", 13, 3, 17, 3, Q("12 mm")),
    Sketcher.Constraint("DistanceX", 17, 3, 21, 3, Q("12 mm")),
    Sketcher.Constraint("DistanceX", 21, 3, 25, 3, Q("12 mm")),
    Sketcher.Constraint("DistanceX", 25, 3, 29, 3, Q("12 mm")),
    Sketcher.Constraint("DistanceX", 1, 3, -1, 1, Q("2.282486 mm")),
    Sketcher.Constraint("DistanceY", -1, 1, 1, 3, Q("36.717514 mm")),
])
pocket3 = doc.addObject("PartDesign::Pocket", "Pocket002")
body.addObject(pocket3)
pocket3.Profile = sketch9
pocket3.Type = "ThroughAll"
pocket3.Midplane = True

# Sketch on XY plane
sketch10 = doc.addObject("Sketcher::SketchObject", "Sketch009")
body.addObject(sketch10)
sketch10.AttachmentSupport = (doc.XY_Plane, [""])
sketch10.MapMode = "FlatFace"
sketch10.AttachmentOffset = App.Placement(V(0, 0, 54), App.Rotation())
sketch10.addGeometry([
    Part.LineSegment(V(-4, 82, 0), V(4, 82, 0)),  # 0
    Part.ArcOfCircle(Part.Circle(V(4, 83, 0), V(0, 0, 1), 1), math.radians(-90), math.radians(0)),  # 1
    Part.LineSegment(V(5, 83, 0), V(5, 89, 0)),  # 2
    Part.ArcOfCircle(Part.Circle(V(4, 89, 0), V(0, 0, 1), 1), math.radians(0), math.radians(90)),  # 3
    Part.LineSegment(V(4, 90, 0), V(-4, 90, 0)),  # 4
    Part.ArcOfCircle(Part.Circle(V(-4, 89, 0), V(0, 0, 1), 1), math.radians(90), math.radians(180)),  # 5
    Part.LineSegment(V(-5, 89, 0), V(-5, 83, 0)),  # 6
    Part.ArcOfCircle(Part.Circle(V(-4, 83, 0), V(0, 0, 1), 1), math.radians(-180), math.radians(-90)),  # 7
], False)
sketch10.addConstraint([
    Sketcher.Constraint("Tangent", 0, 2, 1, 1),
    Sketcher.Constraint("Tangent", 1, 2, 2, 1),
    Sketcher.Constraint("Tangent", 2, 2, 3, 1),
    Sketcher.Constraint("Tangent", 3, 2, 4, 1),
    Sketcher.Constraint("Tangent", 4, 2, 5, 1),
    Sketcher.Constraint("Tangent", 5, 2, 6, 1),
    Sketcher.Constraint("Tangent", 6, 2, 7, 1),
    Sketcher.Constraint("Tangent", 7, 2, 0, 1),
    Sketcher.Constraint("Horizontal", 0),
    Sketcher.Constraint("Vertical", 2),
    Sketcher.Constraint("Horizontal", 4),
    Sketcher.Constraint("Vertical", 6),
    Sketcher.Constraint("Equal", 1, 3),
    Sketcher.Constraint("Equal", 3, 5),
    Sketcher.Constraint("Equal", 5, 7),
    Sketcher.Constraint("Radius", 1, Q("1 mm")),
    Sketcher.Constraint("DistanceX", 0, 1, 0, 2, Q("8 mm")),
    Sketcher.Constraint("DistanceY", 2, 1, 2, 2, Q("6 mm")),
    Sketcher.Constraint("DistanceX", -1, 1, 1, 3, Q("4 mm")),
    Sketcher.Constraint("DistanceY", -1, 1, 1, 3, Q("83 mm")),
])
pad7 = doc.addObject("PartDesign::Pad", "Pad006")
body.addObject(pad7)
pad7.Profile = sketch10
pad7.Length = 5

# Sketch on XZ plane
sketch11 = doc.addObject("Sketcher::SketchObject", "Sketch010")
body.addObject(sketch11)
sketch11.AttachmentSupport = (doc.XZ_Plane, [""])
sketch11.MapMode = "FlatFace"
sketch11.AttachmentOffset = App.Placement(V(0, 0, -83), App.Rotation())
sketch11.addGeometry(Part.Circle(V(0, 56.5, 0), V(0, 0, 1), 1.2), False)
sketch11.addConstraint([
    Sketcher.Constraint("PointOnObject", 0, 3, -2),
    Sketcher.Constraint("Diameter", 0, Q("2.5 mm")),
    Sketcher.Constraint("DistanceY", -1, 1, 0, 3, Q("56.5 mm")),
])
pocket4 = doc.addObject("PartDesign::Pocket", "Pocket003")
body.addObject(pocket4)
pocket4.Profile = sketch11
pocket4.Length = 7

# Sketch on XY plane
sketch12 = doc.addObject("Sketcher::SketchObject", "Sketch011")
body.addObject(sketch12)
sketch12.AttachmentSupport = (doc.XY_Plane, [""])
sketch12.MapMode = "FlatFace"
sketch12.AttachmentOffset = App.Placement(V(0, 0, 3), App.Rotation())
sketch12.addGeometry([
    Part.LineSegment(V(-33, -29, 0), V(-25, -29, 0)),  # 0
    Part.ArcOfCircle(Part.Circle(V(-25, -27, 0), V(0, 0, 1), 2), math.radians(-90), math.radians(0)),  # 1
    Part.LineSegment(V(-23, -27, 0), V(-23, -19, 0)),  # 2
    Part.ArcOfCircle(Part.Circle(V(-25, -19, 0), V(0, 0, 1), 2), math.radians(0), math.radians(90)),  # 3
    Part.LineSegment(V(-25, -17, 0), V(-33, -17, 0)),  # 4
    Part.ArcOfCircle(Part.Circle(V(-33, -19, 0), V(0, 0, 1), 2), math.radians(90), math.radians(180)),  # 5
    Part.LineSegment(V(-35, -19, 0), V(-35, -27, 0)),  # 6
    Part.ArcOfCircle(Part.Circle(V(-33, -27, 0), V(0, 0, 1), 2), math.radians(-180), math.radians(-90)),  # 7
    Part.LineSegment(V(25, -29, 0), V(33, -29, 0)),  # 8
    Part.ArcOfCircle(Part.Circle(V(33, -27, 0), V(0, 0, 1), 2), math.radians(-90), math.radians(0)),  # 9
    Part.LineSegment(V(35, -27, 0), V(35, -19, 0)),  # 10
    Part.ArcOfCircle(Part.Circle(V(33, -19, 0), V(0, 0, 1), 2), math.radians(0), math.radians(90)),  # 11
    Part.LineSegment(V(33, -17, 0), V(25, -17, 0)),  # 12
    Part.ArcOfCircle(Part.Circle(V(25, -19, 0), V(0, 0, 1), 2), math.radians(90), math.radians(180)),  # 13
    Part.LineSegment(V(23, -19, 0), V(23, -27, 0)),  # 14
    Part.ArcOfCircle(Part.Circle(V(25, -27, 0), V(0, 0, 1), 2), math.radians(-180), math.radians(-90)),  # 15
], False)
sketch12.addConstraint([
    Sketcher.Constraint("Tangent", 0, 2, 1, 1),
    Sketcher.Constraint("Tangent", 1, 2, 2, 1),
    Sketcher.Constraint("Tangent", 2, 2, 3, 1),
    Sketcher.Constraint("Tangent", 3, 2, 4, 1),
    Sketcher.Constraint("Tangent", 4, 2, 5, 1),
    Sketcher.Constraint("Tangent", 5, 2, 6, 1),
    Sketcher.Constraint("Tangent", 6, 2, 7, 1),
    Sketcher.Constraint("Tangent", 7, 2, 0, 1),
    Sketcher.Constraint("Tangent", 8, 2, 9, 1),
    Sketcher.Constraint("Tangent", 9, 2, 10, 1),
    Sketcher.Constraint("Tangent", 10, 2, 11, 1),
    Sketcher.Constraint("Tangent", 11, 2, 12, 1),
    Sketcher.Constraint("Tangent", 12, 2, 13, 1),
    Sketcher.Constraint("Tangent", 13, 2, 14, 1),
    Sketcher.Constraint("Tangent", 14, 2, 15, 1),
    Sketcher.Constraint("Tangent", 15, 2, 8, 1),
    Sketcher.Constraint("Horizontal", 0),
    Sketcher.Constraint("Vertical", 2),
    Sketcher.Constraint("Horizontal", 4),
    Sketcher.Constraint("Vertical", 6),
    Sketcher.Constraint("Horizontal", 8),
    Sketcher.Constraint("Vertical", 10),
    Sketcher.Constraint("Horizontal", 12),
    Sketcher.Constraint("Vertical", 14),
    Sketcher.Constraint("Equal", 1, 3),
    Sketcher.Constraint("Equal", 3, 5),
    Sketcher.Constraint("Equal", 5, 7),
    Sketcher.Constraint("Equal", 7, 9),
    Sketcher.Constraint("Equal", 9, 11),
    Sketcher.Constraint("Equal", 11, 13),
    Sketcher.Constraint("Equal", 13, 15),
    Sketcher.Constraint("Symmetric", 7, 3, 9, 3, -2),
    Sketcher.Constraint("Symmetric", 3, 3, 13, 3, -2),
    Sketcher.Constraint("Equal", 12, 2),
    Sketcher.Constraint("Radius", 1, Q("2 mm")),
    Sketcher.Constraint("DistanceX", 0, 1, 0, 2, Q("8 mm")),
    Sketcher.Constraint("DistanceX", 1, 3, -1, 1, Q("25 mm")),
    Sketcher.Constraint("DistanceY", 1, 3, -1, 1, Q("27 mm")),
])
pocket5 = doc.addObject("PartDesign::Pocket", "Pocket004")
body.addObject(pocket5)
pocket5.Profile = sketch12
pocket5.Length = 4
pocket5.Reversed = True

doc.recompute()
